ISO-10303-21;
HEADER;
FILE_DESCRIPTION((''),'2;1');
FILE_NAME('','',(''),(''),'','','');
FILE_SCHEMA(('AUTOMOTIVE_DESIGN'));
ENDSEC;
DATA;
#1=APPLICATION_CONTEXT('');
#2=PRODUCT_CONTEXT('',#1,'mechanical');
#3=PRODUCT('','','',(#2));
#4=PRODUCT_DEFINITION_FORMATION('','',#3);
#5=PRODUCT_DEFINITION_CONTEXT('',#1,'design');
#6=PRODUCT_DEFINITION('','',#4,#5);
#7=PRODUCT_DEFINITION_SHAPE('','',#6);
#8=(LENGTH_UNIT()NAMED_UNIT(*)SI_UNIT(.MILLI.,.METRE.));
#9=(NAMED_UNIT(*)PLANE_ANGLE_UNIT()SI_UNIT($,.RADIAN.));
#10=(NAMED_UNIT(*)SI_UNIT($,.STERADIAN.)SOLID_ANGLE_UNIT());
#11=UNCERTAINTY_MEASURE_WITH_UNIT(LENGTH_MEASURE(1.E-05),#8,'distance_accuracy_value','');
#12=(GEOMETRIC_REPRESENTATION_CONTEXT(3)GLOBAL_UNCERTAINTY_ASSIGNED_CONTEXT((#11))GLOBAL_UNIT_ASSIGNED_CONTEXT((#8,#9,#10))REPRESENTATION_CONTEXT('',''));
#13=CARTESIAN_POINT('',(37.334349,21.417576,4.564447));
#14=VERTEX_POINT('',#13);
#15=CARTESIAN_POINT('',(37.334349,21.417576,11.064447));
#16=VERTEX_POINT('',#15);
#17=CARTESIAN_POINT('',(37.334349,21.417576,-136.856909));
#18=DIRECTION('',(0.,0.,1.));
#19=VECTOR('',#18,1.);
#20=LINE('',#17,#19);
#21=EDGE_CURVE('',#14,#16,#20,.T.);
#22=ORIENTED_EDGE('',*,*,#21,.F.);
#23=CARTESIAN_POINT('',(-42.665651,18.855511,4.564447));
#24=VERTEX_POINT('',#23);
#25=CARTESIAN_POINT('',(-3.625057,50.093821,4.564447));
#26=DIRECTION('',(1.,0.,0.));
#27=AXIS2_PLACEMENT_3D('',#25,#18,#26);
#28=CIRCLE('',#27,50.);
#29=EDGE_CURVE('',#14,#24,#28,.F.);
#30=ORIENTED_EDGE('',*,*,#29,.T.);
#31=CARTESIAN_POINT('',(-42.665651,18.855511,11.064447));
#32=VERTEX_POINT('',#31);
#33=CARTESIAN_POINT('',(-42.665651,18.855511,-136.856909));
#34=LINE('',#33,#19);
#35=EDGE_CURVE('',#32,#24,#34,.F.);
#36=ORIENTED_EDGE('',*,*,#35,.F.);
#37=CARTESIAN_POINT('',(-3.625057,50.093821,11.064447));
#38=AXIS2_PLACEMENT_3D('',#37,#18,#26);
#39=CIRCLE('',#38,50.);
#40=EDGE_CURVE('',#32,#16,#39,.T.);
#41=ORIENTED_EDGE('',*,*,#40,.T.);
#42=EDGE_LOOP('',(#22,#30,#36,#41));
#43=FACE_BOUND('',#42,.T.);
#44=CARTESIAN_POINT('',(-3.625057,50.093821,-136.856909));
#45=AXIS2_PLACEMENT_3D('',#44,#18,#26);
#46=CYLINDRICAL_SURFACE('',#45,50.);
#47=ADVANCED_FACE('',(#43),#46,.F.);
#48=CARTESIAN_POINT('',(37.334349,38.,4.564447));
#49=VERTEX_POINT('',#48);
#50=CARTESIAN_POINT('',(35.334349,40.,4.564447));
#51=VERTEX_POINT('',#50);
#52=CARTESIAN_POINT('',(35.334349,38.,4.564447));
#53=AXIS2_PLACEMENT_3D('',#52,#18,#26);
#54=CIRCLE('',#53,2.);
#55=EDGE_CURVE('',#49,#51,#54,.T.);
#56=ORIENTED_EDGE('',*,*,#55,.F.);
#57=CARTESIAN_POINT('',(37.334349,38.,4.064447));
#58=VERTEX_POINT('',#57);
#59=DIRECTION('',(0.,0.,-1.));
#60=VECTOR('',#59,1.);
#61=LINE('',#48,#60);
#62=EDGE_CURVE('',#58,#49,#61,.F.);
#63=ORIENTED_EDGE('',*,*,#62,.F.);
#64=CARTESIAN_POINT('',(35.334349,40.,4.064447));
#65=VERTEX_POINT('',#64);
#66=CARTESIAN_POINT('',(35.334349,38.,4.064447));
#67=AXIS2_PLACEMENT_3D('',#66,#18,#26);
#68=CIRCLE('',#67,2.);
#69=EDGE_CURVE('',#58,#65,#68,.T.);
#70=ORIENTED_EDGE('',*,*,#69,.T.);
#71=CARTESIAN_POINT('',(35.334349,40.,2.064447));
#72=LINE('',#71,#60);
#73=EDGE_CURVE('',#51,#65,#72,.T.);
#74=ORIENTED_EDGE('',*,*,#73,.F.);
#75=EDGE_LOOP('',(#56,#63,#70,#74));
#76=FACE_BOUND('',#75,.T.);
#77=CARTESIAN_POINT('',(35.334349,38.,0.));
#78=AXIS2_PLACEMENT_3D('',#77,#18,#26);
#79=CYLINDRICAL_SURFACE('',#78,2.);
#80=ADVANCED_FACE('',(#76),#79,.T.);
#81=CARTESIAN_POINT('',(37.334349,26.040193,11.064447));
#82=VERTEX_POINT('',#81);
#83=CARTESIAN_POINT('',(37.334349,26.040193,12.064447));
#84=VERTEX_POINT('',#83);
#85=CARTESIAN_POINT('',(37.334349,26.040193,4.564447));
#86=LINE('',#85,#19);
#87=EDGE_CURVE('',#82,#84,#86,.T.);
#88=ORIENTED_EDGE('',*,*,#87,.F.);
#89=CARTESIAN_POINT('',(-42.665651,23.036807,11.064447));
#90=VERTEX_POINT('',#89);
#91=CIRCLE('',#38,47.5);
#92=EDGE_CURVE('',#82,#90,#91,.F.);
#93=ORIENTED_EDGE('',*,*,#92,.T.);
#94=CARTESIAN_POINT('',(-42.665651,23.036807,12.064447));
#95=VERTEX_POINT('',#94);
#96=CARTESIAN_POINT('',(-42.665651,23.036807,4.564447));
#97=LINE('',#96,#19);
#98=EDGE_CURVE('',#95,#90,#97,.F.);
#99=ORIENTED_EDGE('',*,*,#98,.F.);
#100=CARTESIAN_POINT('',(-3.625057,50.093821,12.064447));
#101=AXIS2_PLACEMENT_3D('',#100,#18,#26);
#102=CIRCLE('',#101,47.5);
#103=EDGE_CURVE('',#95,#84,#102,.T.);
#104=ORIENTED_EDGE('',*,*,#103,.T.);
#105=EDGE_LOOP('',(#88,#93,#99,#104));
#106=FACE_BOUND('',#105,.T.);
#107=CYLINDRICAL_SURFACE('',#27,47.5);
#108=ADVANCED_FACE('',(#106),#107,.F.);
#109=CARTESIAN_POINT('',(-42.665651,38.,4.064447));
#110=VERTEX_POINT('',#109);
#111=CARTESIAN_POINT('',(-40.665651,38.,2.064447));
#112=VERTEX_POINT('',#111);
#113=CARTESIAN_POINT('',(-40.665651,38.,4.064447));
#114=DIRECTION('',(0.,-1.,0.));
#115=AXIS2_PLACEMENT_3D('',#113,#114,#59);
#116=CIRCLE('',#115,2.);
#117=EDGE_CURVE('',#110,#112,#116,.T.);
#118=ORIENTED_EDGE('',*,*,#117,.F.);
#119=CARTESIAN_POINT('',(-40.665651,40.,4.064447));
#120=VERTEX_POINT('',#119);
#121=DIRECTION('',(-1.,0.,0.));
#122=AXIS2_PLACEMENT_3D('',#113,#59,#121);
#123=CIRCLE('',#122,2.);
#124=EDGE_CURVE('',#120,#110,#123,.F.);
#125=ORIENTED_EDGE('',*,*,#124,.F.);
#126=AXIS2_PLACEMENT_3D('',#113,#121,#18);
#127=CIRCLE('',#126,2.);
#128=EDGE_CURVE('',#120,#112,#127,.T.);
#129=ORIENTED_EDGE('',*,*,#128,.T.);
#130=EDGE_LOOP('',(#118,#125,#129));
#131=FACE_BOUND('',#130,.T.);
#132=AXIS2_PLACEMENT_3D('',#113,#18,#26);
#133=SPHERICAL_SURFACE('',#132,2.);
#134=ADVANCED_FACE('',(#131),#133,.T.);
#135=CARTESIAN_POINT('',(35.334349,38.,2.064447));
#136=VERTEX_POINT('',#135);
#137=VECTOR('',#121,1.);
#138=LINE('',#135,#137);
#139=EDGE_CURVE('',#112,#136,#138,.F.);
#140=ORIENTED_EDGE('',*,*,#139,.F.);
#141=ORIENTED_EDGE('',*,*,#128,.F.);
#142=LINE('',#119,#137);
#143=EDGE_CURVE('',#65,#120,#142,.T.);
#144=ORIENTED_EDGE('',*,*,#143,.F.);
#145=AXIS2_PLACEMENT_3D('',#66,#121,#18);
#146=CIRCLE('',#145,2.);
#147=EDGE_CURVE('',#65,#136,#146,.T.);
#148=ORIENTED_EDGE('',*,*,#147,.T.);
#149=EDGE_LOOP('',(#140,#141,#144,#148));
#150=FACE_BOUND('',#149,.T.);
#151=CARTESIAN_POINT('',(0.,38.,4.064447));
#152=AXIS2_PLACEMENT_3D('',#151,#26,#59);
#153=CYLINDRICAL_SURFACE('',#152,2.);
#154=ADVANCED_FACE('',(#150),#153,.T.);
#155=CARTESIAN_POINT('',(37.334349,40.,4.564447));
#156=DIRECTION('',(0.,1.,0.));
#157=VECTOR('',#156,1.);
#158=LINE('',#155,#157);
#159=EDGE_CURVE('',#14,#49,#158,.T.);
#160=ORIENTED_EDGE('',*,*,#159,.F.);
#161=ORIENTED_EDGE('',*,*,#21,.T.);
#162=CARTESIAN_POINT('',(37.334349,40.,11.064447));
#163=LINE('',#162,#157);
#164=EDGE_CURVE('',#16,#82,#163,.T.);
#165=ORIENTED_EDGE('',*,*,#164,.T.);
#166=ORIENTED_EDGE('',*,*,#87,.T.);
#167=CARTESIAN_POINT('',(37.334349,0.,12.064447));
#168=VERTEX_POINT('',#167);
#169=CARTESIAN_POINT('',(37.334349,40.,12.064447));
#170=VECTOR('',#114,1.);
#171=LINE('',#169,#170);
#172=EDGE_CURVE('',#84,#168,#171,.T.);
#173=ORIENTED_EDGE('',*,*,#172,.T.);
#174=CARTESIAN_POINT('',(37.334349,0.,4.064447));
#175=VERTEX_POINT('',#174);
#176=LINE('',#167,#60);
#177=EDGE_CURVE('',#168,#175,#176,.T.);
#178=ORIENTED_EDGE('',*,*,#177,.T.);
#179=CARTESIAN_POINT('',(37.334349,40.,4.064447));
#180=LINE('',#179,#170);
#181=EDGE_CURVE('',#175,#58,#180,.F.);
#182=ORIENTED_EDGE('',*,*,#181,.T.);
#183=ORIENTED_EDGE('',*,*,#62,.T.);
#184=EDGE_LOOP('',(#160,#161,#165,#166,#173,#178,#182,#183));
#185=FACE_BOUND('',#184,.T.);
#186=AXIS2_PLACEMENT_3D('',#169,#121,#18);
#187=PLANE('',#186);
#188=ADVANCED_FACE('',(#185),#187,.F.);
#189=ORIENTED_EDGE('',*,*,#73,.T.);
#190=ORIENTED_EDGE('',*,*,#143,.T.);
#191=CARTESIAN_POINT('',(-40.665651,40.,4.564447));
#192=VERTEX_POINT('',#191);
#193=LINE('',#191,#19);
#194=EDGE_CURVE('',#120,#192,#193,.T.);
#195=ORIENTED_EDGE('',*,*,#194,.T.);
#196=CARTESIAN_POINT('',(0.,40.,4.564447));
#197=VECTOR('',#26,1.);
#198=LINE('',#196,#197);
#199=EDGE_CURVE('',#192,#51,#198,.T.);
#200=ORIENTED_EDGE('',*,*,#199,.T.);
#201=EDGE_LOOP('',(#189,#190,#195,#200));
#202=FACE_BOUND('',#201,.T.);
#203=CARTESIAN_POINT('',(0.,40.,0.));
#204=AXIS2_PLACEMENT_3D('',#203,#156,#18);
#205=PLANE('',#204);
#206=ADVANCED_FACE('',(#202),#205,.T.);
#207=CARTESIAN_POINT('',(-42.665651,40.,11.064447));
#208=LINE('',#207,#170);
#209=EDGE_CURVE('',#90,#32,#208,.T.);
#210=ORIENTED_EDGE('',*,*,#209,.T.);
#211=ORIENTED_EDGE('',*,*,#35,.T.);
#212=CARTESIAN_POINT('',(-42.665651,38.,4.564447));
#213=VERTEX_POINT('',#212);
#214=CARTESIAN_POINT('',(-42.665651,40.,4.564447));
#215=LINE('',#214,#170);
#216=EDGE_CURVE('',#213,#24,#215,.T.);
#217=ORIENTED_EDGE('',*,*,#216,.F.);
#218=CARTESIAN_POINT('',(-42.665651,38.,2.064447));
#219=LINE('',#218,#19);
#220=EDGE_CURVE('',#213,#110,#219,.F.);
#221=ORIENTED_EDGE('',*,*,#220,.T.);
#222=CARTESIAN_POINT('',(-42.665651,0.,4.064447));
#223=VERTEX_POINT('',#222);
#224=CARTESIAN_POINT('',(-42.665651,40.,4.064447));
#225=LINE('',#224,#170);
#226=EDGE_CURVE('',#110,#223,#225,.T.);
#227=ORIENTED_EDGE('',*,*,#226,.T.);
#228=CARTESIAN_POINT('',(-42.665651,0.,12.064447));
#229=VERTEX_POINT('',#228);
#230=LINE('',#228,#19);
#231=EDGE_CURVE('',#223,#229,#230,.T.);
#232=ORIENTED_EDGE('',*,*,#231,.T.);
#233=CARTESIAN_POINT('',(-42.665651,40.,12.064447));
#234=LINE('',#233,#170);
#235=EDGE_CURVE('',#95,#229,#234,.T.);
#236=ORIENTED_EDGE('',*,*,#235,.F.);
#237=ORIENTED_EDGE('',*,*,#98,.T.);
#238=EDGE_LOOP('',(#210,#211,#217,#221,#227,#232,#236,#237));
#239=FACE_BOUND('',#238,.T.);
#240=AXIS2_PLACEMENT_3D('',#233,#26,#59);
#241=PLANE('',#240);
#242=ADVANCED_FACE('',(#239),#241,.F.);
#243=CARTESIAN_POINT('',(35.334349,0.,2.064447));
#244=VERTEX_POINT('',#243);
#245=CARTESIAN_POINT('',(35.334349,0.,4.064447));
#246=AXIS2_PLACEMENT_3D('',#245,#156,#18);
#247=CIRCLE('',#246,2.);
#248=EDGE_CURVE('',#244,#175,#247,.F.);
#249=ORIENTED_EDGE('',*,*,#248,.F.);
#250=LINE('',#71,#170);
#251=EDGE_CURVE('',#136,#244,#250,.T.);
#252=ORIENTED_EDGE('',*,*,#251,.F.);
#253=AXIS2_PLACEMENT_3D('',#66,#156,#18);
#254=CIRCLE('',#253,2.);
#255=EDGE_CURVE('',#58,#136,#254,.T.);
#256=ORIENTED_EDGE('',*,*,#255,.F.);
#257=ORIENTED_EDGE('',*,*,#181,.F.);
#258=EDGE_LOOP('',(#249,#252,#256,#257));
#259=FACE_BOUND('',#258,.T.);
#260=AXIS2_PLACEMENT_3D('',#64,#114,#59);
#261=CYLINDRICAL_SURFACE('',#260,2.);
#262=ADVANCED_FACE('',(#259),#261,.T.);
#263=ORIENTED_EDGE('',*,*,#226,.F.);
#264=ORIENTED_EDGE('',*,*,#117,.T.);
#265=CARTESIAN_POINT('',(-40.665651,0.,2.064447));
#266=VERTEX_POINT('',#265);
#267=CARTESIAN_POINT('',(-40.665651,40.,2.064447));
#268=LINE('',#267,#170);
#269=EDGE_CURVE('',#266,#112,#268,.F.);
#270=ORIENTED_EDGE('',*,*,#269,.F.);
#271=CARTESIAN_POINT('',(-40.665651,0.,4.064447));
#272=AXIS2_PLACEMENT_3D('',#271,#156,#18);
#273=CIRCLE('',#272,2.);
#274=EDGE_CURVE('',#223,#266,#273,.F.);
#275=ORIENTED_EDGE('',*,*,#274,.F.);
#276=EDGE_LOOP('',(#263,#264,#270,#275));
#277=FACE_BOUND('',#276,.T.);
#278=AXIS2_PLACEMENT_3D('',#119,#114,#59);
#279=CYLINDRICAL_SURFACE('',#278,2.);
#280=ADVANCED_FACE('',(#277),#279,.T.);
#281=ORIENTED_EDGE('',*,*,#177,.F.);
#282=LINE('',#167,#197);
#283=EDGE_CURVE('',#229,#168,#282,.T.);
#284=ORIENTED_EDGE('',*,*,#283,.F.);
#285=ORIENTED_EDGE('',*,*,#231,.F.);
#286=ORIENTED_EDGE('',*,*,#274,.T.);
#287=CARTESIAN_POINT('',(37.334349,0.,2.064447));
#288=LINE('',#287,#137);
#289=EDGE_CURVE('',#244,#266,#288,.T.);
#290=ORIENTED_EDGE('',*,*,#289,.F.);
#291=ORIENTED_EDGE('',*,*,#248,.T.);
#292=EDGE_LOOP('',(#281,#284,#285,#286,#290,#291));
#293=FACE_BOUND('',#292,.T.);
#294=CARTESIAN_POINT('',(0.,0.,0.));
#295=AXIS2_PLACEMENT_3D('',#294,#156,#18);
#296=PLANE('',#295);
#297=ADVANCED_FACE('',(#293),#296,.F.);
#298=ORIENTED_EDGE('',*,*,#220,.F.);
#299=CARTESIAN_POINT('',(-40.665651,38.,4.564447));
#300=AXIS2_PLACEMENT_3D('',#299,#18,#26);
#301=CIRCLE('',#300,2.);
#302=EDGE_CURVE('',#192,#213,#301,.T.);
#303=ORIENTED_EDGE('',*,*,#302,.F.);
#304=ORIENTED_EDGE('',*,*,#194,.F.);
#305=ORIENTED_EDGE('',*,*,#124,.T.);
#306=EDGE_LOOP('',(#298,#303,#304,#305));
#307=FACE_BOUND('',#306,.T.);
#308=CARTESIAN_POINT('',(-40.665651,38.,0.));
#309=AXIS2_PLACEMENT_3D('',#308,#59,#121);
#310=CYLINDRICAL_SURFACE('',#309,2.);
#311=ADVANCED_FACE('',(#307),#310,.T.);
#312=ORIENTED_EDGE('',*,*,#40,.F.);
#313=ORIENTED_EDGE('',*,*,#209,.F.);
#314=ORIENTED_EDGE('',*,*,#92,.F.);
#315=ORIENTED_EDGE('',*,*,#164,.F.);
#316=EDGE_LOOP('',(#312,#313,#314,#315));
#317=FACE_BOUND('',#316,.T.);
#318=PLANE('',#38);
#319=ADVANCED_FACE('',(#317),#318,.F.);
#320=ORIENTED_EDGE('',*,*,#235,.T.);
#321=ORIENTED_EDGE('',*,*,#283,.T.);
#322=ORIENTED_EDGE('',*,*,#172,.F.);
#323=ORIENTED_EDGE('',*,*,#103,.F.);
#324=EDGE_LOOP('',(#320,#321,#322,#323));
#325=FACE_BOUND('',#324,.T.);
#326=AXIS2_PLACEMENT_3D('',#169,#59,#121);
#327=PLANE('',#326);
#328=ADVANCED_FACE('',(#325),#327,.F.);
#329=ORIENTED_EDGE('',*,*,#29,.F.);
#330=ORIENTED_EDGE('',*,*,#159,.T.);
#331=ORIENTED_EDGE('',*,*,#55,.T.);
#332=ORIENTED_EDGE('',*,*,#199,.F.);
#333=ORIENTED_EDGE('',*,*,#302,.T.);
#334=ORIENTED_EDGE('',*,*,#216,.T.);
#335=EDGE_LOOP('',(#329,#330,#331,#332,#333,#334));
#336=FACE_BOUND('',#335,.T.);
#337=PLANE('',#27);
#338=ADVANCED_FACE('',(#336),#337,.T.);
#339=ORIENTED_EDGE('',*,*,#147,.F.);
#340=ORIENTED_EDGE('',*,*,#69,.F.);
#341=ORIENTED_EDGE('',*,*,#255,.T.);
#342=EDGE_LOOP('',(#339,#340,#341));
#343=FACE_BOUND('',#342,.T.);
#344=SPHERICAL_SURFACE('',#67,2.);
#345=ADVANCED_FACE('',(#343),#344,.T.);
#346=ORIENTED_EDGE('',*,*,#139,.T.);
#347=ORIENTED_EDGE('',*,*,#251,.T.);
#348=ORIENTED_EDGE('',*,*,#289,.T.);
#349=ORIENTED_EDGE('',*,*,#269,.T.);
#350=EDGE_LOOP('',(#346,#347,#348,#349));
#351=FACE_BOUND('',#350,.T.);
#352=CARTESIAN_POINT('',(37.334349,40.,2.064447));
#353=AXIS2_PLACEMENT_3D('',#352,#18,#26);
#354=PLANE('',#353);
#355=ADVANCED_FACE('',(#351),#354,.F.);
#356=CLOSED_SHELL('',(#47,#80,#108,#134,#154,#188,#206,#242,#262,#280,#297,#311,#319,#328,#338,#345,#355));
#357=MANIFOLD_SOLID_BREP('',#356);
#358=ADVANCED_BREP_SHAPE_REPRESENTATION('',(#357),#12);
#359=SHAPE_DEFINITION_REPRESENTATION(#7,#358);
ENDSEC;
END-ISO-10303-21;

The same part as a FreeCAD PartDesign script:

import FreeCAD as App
import Part
import Sketcher

V = App.Vector
Q = App.Units.Quantity


def edges_at(feature, points):
    """Names of the edges that pass closest to the given points."""
    edges = feature.Shape.Edges
    near = lambda p: min(range(len(edges)), key=lambda i: edges[i].distToShape(Part.Vertex(*p))[0])
    return sorted({f"Edge{near(p) + 1}" for p in points})

doc = App.newDocument("Part")
body = doc.addObject("PartDesign::Body", "Body")

# Sketch on XZ plane
sketch1 = body.newObject("Sketcher::SketchObject", "Sketch")
sketch1.AttachmentSupport = (doc.getObject("XZ_Plane"), [""])
sketch1.MapMode = "FlatFace"
sketch1.addGeometry([
    Part.LineSegment(V(-43, 2, 0), V(-43, 12, 0)),
    Part.LineSegment(V(-43, 12, 0), V(37, 12, 0)),
    Part.LineSegment(V(37, 12, 0), V(37, 2, 0)),
    Part.LineSegment(V(37, 2, 0), V(-43, 2, 0)),
], False)
sketch1.addConstraint([
    Sketcher.Constraint("Coincident", 0, 2, 1, 1),
    Sketcher.Constraint("Coincident", 1, 2, 2, 1),
    Sketcher.Constraint("Coincident", 2, 2, 3, 1),
    Sketcher.Constraint("Coincident", 3, 2, 0, 1),
    Sketcher.Constraint("Vertical", 0),
    Sketcher.Constraint("Horizontal", 1),
    Sketcher.Constraint("Vertical", 2),
    Sketcher.Constraint("Horizontal", 3),
    Sketcher.Constraint("DistanceX", 1, 1, 1, 2, Q("80 mm")),
    Sketcher.Constraint("DistanceY", 0, 1, 0, 2, Q("10 mm")),
    Sketcher.Constraint("DistanceX", 0, 2, -1, 1, Q("42.665651 mm")),
    Sketcher.Constraint("DistanceY", -1, 1, 0, 2, Q("12.064447 mm")),
])
pad1 = body.newObject("PartDesign::Pad", "Pad")
pad1.Profile = sketch1
pad1.Length = 40
pad1.Reversed = True

# Sketch on XY plane
sketch2 = body.newObject("Sketcher::SketchObject", "Sketch001")
sketch2.AttachmentSupport = (doc.getObject("XY_Plane"), [""])
sketch2.MapMode = "FlatFace"
sketch2.AttachmentOffset = App.Placement(V(0, 0, 12.064447), App.Rotation())
sketch2.addGeometry(Part.Circle(V(-4, 50, 0), V(0, 0, 1), 48), False)
sketch2.addConstraint([
    Sketcher.Constraint("Diameter", 0, Q("95 mm")),
    Sketcher.Constraint("DistanceY", -1, 1, 0, 3, Q("50.093821 mm")),
    Sketcher.Constraint("DistanceX", 0, 3, -1, 1, Q("3.625057 mm")),
])
pocket1 = body.newObject("PartDesign::Pocket", "Pocket")
pocket1.Profile = sketch2
pocket1.Length = 7.5

# Sketch on XY plane
sketch3 = body.newObject("Sketcher::SketchObject", "Sketch002")
sketch3.AttachmentSupport = (doc.getObject("XY_Plane"), [""])
sketch3.MapMode = "FlatFace"
sketch3.AttachmentOffset = App.Placement(V(0, 0, 11.064447), App.Rotation())
sketch3.addGeometry(Part.Circle(V(-4, 50, 0), V(0, 0, 1), 50), False)
sketch3.addConstraint([
    Sketcher.Constraint("Diameter", 0, Q("100 mm")),
    Sketcher.Constraint("DistanceY", -1, 1, 0, 3, Q("50.093821 mm")),
    Sketcher.Constraint("DistanceX", 0, 3, -1, 1, Q("3.625057 mm")),
])
pocket2 = body.newObject("PartDesign::Pocket", "Pocket001")
pocket2.Profile = sketch3
pocket2.Length = 6.5
doc.recompute()

fillet = body.newObject("PartDesign::Fillet", "Fillet")
fillet.Base = (pocket2, edges_at(pocket2, [(-42.666, 40, 3.314), (37.334, 40, 3.314)]))
fillet.Radius = 2
doc.recompute()

fillet2 = body.newObject("PartDesign::Fillet", "Fillet001")
fillet2.Base = (fillet, edges_at(fillet, [
    (-2.666, 40, 2.064),
    (-42.666, 19, 2.064),
    (37.334, 19, 2.064),
    (-42.08, 39.414, 2.064),
    (36.749, 39.414, 2.064),
]))
fillet2.Radius = 2

doc.recompute()
